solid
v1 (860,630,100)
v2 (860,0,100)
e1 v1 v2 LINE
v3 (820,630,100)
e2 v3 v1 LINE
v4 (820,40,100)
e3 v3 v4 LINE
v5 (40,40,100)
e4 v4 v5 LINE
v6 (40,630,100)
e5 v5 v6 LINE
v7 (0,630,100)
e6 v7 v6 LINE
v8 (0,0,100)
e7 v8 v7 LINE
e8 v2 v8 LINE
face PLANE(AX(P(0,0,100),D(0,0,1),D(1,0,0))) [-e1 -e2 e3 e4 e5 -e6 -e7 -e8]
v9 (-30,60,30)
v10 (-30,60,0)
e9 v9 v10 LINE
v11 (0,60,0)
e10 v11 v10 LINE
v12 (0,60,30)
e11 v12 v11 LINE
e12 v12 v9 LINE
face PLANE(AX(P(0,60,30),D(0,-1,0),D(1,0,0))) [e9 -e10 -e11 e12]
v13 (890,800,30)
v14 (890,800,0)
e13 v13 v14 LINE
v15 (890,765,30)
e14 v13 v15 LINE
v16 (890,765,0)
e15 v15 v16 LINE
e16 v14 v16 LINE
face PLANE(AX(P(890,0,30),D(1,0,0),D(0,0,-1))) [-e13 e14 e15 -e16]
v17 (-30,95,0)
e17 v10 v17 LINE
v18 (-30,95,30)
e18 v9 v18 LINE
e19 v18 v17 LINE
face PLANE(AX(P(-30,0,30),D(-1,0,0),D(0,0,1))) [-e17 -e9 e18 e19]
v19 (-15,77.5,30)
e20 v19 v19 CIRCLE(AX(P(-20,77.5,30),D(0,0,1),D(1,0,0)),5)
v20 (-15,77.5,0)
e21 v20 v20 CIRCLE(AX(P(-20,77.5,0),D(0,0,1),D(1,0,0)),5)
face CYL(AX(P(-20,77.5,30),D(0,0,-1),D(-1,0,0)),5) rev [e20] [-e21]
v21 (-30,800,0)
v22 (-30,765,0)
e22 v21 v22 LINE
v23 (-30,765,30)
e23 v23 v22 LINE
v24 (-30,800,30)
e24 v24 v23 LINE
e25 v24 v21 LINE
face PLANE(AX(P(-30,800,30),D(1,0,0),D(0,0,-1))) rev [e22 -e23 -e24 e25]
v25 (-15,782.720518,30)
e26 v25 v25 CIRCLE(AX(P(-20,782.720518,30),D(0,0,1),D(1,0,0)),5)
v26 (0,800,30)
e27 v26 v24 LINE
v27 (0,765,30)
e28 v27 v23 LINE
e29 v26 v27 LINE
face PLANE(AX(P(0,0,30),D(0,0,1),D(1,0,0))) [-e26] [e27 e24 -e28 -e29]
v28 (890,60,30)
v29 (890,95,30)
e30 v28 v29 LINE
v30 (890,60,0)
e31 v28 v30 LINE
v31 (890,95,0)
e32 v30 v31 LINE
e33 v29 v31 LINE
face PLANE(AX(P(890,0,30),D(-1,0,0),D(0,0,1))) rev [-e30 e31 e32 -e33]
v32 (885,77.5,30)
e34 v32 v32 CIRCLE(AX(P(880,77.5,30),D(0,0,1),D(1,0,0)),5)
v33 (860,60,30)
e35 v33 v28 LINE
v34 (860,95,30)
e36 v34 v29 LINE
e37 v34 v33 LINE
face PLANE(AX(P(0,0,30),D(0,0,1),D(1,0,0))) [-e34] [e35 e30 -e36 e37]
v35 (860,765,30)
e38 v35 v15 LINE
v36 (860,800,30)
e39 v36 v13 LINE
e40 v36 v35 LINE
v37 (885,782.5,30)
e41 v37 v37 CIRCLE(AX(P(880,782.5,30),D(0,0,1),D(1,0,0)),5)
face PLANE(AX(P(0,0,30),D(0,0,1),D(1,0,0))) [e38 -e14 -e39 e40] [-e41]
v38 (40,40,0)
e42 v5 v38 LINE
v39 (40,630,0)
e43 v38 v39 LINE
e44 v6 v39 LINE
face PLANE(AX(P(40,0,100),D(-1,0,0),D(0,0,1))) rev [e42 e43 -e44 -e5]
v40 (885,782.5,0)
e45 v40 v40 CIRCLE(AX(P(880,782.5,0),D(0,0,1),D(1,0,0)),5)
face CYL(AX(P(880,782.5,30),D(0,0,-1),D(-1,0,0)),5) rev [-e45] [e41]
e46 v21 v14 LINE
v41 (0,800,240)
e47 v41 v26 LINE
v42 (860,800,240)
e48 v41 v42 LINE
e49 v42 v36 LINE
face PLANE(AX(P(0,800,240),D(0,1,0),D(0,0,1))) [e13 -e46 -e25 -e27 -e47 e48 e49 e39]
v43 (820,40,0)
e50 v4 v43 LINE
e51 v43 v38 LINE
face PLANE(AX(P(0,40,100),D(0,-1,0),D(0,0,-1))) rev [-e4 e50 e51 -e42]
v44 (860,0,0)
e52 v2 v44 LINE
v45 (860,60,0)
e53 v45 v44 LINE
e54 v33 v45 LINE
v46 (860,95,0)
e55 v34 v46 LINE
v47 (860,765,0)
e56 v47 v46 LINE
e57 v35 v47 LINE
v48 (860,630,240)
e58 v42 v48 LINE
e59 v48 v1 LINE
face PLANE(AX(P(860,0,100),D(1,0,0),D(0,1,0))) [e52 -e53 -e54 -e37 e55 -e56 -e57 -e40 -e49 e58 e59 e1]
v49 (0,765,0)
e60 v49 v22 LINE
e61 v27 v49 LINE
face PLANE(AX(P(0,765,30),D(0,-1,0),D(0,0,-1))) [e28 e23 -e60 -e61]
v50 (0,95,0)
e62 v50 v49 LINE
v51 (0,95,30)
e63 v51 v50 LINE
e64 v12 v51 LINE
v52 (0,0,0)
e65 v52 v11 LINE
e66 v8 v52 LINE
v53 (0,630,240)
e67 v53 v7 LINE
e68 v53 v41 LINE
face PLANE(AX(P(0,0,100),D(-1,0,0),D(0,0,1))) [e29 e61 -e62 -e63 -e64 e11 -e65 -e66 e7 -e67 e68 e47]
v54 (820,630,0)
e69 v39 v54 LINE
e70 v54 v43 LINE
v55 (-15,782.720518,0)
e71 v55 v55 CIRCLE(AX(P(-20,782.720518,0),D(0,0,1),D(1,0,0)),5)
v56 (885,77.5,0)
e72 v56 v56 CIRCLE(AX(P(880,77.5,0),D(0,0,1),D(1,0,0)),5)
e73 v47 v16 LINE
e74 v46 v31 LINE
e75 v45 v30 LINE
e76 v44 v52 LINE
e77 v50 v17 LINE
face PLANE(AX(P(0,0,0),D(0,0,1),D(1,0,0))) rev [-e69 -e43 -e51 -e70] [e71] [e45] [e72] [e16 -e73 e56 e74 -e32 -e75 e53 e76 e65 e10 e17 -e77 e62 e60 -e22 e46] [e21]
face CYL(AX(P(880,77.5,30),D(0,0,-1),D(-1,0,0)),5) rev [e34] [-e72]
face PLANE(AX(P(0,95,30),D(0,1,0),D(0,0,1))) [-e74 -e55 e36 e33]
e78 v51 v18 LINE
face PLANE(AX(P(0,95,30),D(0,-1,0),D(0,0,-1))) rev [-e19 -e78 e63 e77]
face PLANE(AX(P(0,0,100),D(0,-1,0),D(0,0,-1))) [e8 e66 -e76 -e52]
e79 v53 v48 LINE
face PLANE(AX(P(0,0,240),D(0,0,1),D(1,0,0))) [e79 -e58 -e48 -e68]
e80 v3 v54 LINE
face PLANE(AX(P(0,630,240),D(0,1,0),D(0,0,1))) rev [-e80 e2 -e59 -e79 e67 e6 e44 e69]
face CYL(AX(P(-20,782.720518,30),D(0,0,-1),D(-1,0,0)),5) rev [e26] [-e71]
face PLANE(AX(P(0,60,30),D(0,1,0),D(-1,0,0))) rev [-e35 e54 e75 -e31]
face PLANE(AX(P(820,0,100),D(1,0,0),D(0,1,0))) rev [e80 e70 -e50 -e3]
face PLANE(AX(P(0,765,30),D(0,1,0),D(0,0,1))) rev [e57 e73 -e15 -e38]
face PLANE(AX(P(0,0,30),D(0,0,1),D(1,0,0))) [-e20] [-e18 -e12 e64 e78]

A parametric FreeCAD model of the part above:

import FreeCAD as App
import Part
import Sketcher
Q = App.Units.Quantity


def add_polygon(sketch, points):
    """Adds a closed chain of lines whose ends are joined by coincident constraints."""
    first, n = sketch.GeometryCount, len(points)
    for a, b in zip(points, points[1:] + points[:1]):
        sketch.addGeometry(Part.LineSegment(App.Vector(*a, 0), App.Vector(*b, 0)), False)
    for i in range(n):
        sketch.addConstraint(Sketcher.Constraint("Coincident", first + i, 2, first + (i + 1) % n, 1))

doc = App.newDocument("Part")
body = doc.addObject("PartDesign::Body", "Body")

sketch1 = body.newObject("Sketcher::SketchObject", "Sketch")
sketch1.AttachmentSupport = (doc.getObject("XY_Plane"), [""])
sketch1.MapMode = "FlatFace"
add_polygon(sketch1, [(0, 0), (860, 0), (860, 630), (820, 630), (820, 40), (40, 40), (40, 630), (0, 630)])
sketch1.addConstraint([
    Sketcher.Constraint("Horizontal", 0),
    Sketcher.Constraint("Vertical", 1),
    Sketcher.Constraint("Horizontal", 2),
    Sketcher.Constraint("Vertical", 3),
    Sketcher.Constraint("Horizontal", 4),
    Sketcher.Constraint("Vertical", 5),
    Sketcher.Constraint("Horizontal", 6),
    Sketcher.Constraint("Vertical", 7),
    Sketcher.Constraint("Coincident", 7, 2, -1, 1),
    Sketcher.Constraint("Horizontal", 2, 2, 5, 2),
    Sketcher.Constraint("Equal", 2, 6),
    Sketcher.Constraint("DistanceX", 0, 1, 0, 2, Q("860 mm")),
    Sketcher.Constraint("DistanceX", 2, 2, 2, 1, Q("40 mm")),
    Sketcher.Constraint("DistanceY", 1, 1, 1, 2, Q("630 mm")),
    Sketcher.Constraint("DistanceY", 3, 2, 3, 1, Q("590 mm")),
])
pad1 = body.newObject("PartDesign::Pad", "Pad")
pad1.Profile = sketch1
pad1.Length = 100

sketch2 = body.newObject("Sketcher::SketchObject", "Sketch001")
sketch2.AttachmentSupport = (doc.getObject("XY_Plane"), [""])
sketch2.MapMode = "FlatFace"
add_polygon(sketch2, [(0, 630), (860, 630), (860, 800), (0, 800)])
sketch2.addConstraint([
    Sketcher.Constraint("Horizontal", 0),
    Sketcher.Constraint("Vertical", 1),
    Sketcher.Constraint("Horizontal", 2),
    Sketcher.Constraint("Vertical", 3),
    Sketcher.Constraint("PointOnObject", 2, 2, -2),
    Sketcher.Constraint("DistanceX", 0, 1, 0, 2, Q("860 mm")),
    Sketcher.Constraint("DistanceY", 1, 1, 1, 2, Q("170 mm")),
    Sketcher.Constraint("DistanceY", -1, 1, 0, 2, Q("630 mm")),
])
pad2 = body.newObject("PartDesign::Pad", "Pad001")
pad2.Profile = sketch2
pad2.Length = 240

sketch3 = body.newObject("Sketcher::SketchObject", "Sketch002")
sketch3.AttachmentSupport = (doc.getObject("XY_Plane"), [""])
sketch3.MapMode = "FlatFace"
add_polygon(sketch3, [(-30, 95), (-30, 60), (0, 60), (0, 95)])
sketch3.addGeometry(Part.Circle(App.Vector(-20, 77.5, 0), App.Vector(0, 0, 1), 5), False)
add_polygon(sketch3, [(860, 95), (860, 60), (890, 60), (890, 95)])
sketch3.addGeometry(Part.Circle(App.Vector(880, 77.5, 0), App.Vector(0, 0, 1), 5), False)
add_polygon(sketch3, [(-30, 800), (-30, 765), (0, 765), (0, 800)])
sketch3.addGeometry(Part.Circle(App.Vector(-20, 782.720518, 0), App.Vector(0, 0, 1), 5), False)
add_polygon(sketch3, [(860, 800), (860, 765), (890, 765), (890, 800)])
sketch3.addGeometry(Part.Circle(App.Vector(880, 782.5, 0), App.Vector(0, 0, 1), 5), False)
sketch3.addConstraint([
    Sketcher.Constraint("Vertical", 0),
    Sketcher.Constraint("Horizontal", 1),
    Sketcher.Constraint("Vertical", 2),
    Sketcher.Constraint("Horizontal", 3),
    Sketcher.Constraint("Vertical", 5),
    Sketcher.Constraint("Horizontal", 6),
    Sketcher.Constraint("Vertical", 7),
    Sketcher.Constraint("Horizontal", 8),
    Sketcher.Constraint("Vertical", 10),
    Sketcher.Constraint("Horizontal", 11),
    Sketcher.Constraint("Vertical", 12),
    Sketcher.Constraint("Horizontal", 13),
    Sketcher.Constraint("Vertical", 15),
    Sketcher.Constraint("Horizontal", 16),
    Sketcher.Constraint("Vertical", 17),
    Sketcher.Constraint("Horizontal", 18),
    Sketcher.Constraint("Equal", 4, 9),
    Sketcher.Constraint("Equal", 9, 14),
    Sketcher.Constraint("Equal", 14, 19),
    Sketcher.Constraint("PointOnObject", 1, 2, -2),
    Sketcher.Constraint("PointOnObject", 11, 2, -2),
    Sketcher.Constraint("Horizontal", 4, 3, 9, 3),
    Sketcher.Constraint("Horizontal", 1, 2, 5, 2),
    Sketcher.Constraint("Horizontal", 3, 2, 7, 2),
    Sketcher.Constraint("Horizontal", 11, 2, 15, 2),
    Sketcher.Constraint("Horizontal", 13, 2, 17, 2),
    Sketcher.Constraint("Vertical", 4, 3, 14, 3),
    Sketcher.Constraint("Vertical", 9, 3, 19, 3),
    Sketcher.Constraint("Vertical", 3, 2, 10, 2),
    Sketcher.Constraint("Vertical", 8, 2, 15, 2),
    Sketcher.Constraint("Vertical", 7, 2, 16, 2),
    Sketcher.Constraint("Equal", 3, 6),
    Sketcher.Constraint("Equal", 7, 10),
    Sketcher.Constraint("Diameter", 4, Q("10 mm")),
    Sketcher.Constraint("DistanceX", 1, 1, 1, 2, Q("30 mm")),
    Sketcher.Constraint("DistanceY", 0, 2, 0, 1, Q("35 mm")),
    Sketcher.Constraint("DistanceX", 4, 3, -1, 1, Q("20 mm")),
    Sketcher.Constraint("DistanceX", -1, 1, 9, 3, Q("880 mm")),
    Sketcher.Constraint("DistanceY", -1, 1, 0, 2, Q("60 mm")),
    Sketcher.Constraint("DistanceX", -1, 1, 5, 2, Q("860 mm")),
    Sketcher.Constraint("DistanceY", -1, 1, 10, 2, Q("765 mm")),
    Sketcher.Constraint("DistanceY", 9, 3, 19, 3, Q("705 mm")),
    Sketcher.Constraint("DistanceY", -1, 1, 4, 3, Q("77.5 mm")),
    Sketcher.Constraint("DistanceY", -1, 1, 14, 3, Q("782.720518 mm")),
])
pad3 = body.newObject("PartDesign::Pad", "Pad002")
pad3.Profile = sketch3
pad3.Length = 30

doc.recompute()
